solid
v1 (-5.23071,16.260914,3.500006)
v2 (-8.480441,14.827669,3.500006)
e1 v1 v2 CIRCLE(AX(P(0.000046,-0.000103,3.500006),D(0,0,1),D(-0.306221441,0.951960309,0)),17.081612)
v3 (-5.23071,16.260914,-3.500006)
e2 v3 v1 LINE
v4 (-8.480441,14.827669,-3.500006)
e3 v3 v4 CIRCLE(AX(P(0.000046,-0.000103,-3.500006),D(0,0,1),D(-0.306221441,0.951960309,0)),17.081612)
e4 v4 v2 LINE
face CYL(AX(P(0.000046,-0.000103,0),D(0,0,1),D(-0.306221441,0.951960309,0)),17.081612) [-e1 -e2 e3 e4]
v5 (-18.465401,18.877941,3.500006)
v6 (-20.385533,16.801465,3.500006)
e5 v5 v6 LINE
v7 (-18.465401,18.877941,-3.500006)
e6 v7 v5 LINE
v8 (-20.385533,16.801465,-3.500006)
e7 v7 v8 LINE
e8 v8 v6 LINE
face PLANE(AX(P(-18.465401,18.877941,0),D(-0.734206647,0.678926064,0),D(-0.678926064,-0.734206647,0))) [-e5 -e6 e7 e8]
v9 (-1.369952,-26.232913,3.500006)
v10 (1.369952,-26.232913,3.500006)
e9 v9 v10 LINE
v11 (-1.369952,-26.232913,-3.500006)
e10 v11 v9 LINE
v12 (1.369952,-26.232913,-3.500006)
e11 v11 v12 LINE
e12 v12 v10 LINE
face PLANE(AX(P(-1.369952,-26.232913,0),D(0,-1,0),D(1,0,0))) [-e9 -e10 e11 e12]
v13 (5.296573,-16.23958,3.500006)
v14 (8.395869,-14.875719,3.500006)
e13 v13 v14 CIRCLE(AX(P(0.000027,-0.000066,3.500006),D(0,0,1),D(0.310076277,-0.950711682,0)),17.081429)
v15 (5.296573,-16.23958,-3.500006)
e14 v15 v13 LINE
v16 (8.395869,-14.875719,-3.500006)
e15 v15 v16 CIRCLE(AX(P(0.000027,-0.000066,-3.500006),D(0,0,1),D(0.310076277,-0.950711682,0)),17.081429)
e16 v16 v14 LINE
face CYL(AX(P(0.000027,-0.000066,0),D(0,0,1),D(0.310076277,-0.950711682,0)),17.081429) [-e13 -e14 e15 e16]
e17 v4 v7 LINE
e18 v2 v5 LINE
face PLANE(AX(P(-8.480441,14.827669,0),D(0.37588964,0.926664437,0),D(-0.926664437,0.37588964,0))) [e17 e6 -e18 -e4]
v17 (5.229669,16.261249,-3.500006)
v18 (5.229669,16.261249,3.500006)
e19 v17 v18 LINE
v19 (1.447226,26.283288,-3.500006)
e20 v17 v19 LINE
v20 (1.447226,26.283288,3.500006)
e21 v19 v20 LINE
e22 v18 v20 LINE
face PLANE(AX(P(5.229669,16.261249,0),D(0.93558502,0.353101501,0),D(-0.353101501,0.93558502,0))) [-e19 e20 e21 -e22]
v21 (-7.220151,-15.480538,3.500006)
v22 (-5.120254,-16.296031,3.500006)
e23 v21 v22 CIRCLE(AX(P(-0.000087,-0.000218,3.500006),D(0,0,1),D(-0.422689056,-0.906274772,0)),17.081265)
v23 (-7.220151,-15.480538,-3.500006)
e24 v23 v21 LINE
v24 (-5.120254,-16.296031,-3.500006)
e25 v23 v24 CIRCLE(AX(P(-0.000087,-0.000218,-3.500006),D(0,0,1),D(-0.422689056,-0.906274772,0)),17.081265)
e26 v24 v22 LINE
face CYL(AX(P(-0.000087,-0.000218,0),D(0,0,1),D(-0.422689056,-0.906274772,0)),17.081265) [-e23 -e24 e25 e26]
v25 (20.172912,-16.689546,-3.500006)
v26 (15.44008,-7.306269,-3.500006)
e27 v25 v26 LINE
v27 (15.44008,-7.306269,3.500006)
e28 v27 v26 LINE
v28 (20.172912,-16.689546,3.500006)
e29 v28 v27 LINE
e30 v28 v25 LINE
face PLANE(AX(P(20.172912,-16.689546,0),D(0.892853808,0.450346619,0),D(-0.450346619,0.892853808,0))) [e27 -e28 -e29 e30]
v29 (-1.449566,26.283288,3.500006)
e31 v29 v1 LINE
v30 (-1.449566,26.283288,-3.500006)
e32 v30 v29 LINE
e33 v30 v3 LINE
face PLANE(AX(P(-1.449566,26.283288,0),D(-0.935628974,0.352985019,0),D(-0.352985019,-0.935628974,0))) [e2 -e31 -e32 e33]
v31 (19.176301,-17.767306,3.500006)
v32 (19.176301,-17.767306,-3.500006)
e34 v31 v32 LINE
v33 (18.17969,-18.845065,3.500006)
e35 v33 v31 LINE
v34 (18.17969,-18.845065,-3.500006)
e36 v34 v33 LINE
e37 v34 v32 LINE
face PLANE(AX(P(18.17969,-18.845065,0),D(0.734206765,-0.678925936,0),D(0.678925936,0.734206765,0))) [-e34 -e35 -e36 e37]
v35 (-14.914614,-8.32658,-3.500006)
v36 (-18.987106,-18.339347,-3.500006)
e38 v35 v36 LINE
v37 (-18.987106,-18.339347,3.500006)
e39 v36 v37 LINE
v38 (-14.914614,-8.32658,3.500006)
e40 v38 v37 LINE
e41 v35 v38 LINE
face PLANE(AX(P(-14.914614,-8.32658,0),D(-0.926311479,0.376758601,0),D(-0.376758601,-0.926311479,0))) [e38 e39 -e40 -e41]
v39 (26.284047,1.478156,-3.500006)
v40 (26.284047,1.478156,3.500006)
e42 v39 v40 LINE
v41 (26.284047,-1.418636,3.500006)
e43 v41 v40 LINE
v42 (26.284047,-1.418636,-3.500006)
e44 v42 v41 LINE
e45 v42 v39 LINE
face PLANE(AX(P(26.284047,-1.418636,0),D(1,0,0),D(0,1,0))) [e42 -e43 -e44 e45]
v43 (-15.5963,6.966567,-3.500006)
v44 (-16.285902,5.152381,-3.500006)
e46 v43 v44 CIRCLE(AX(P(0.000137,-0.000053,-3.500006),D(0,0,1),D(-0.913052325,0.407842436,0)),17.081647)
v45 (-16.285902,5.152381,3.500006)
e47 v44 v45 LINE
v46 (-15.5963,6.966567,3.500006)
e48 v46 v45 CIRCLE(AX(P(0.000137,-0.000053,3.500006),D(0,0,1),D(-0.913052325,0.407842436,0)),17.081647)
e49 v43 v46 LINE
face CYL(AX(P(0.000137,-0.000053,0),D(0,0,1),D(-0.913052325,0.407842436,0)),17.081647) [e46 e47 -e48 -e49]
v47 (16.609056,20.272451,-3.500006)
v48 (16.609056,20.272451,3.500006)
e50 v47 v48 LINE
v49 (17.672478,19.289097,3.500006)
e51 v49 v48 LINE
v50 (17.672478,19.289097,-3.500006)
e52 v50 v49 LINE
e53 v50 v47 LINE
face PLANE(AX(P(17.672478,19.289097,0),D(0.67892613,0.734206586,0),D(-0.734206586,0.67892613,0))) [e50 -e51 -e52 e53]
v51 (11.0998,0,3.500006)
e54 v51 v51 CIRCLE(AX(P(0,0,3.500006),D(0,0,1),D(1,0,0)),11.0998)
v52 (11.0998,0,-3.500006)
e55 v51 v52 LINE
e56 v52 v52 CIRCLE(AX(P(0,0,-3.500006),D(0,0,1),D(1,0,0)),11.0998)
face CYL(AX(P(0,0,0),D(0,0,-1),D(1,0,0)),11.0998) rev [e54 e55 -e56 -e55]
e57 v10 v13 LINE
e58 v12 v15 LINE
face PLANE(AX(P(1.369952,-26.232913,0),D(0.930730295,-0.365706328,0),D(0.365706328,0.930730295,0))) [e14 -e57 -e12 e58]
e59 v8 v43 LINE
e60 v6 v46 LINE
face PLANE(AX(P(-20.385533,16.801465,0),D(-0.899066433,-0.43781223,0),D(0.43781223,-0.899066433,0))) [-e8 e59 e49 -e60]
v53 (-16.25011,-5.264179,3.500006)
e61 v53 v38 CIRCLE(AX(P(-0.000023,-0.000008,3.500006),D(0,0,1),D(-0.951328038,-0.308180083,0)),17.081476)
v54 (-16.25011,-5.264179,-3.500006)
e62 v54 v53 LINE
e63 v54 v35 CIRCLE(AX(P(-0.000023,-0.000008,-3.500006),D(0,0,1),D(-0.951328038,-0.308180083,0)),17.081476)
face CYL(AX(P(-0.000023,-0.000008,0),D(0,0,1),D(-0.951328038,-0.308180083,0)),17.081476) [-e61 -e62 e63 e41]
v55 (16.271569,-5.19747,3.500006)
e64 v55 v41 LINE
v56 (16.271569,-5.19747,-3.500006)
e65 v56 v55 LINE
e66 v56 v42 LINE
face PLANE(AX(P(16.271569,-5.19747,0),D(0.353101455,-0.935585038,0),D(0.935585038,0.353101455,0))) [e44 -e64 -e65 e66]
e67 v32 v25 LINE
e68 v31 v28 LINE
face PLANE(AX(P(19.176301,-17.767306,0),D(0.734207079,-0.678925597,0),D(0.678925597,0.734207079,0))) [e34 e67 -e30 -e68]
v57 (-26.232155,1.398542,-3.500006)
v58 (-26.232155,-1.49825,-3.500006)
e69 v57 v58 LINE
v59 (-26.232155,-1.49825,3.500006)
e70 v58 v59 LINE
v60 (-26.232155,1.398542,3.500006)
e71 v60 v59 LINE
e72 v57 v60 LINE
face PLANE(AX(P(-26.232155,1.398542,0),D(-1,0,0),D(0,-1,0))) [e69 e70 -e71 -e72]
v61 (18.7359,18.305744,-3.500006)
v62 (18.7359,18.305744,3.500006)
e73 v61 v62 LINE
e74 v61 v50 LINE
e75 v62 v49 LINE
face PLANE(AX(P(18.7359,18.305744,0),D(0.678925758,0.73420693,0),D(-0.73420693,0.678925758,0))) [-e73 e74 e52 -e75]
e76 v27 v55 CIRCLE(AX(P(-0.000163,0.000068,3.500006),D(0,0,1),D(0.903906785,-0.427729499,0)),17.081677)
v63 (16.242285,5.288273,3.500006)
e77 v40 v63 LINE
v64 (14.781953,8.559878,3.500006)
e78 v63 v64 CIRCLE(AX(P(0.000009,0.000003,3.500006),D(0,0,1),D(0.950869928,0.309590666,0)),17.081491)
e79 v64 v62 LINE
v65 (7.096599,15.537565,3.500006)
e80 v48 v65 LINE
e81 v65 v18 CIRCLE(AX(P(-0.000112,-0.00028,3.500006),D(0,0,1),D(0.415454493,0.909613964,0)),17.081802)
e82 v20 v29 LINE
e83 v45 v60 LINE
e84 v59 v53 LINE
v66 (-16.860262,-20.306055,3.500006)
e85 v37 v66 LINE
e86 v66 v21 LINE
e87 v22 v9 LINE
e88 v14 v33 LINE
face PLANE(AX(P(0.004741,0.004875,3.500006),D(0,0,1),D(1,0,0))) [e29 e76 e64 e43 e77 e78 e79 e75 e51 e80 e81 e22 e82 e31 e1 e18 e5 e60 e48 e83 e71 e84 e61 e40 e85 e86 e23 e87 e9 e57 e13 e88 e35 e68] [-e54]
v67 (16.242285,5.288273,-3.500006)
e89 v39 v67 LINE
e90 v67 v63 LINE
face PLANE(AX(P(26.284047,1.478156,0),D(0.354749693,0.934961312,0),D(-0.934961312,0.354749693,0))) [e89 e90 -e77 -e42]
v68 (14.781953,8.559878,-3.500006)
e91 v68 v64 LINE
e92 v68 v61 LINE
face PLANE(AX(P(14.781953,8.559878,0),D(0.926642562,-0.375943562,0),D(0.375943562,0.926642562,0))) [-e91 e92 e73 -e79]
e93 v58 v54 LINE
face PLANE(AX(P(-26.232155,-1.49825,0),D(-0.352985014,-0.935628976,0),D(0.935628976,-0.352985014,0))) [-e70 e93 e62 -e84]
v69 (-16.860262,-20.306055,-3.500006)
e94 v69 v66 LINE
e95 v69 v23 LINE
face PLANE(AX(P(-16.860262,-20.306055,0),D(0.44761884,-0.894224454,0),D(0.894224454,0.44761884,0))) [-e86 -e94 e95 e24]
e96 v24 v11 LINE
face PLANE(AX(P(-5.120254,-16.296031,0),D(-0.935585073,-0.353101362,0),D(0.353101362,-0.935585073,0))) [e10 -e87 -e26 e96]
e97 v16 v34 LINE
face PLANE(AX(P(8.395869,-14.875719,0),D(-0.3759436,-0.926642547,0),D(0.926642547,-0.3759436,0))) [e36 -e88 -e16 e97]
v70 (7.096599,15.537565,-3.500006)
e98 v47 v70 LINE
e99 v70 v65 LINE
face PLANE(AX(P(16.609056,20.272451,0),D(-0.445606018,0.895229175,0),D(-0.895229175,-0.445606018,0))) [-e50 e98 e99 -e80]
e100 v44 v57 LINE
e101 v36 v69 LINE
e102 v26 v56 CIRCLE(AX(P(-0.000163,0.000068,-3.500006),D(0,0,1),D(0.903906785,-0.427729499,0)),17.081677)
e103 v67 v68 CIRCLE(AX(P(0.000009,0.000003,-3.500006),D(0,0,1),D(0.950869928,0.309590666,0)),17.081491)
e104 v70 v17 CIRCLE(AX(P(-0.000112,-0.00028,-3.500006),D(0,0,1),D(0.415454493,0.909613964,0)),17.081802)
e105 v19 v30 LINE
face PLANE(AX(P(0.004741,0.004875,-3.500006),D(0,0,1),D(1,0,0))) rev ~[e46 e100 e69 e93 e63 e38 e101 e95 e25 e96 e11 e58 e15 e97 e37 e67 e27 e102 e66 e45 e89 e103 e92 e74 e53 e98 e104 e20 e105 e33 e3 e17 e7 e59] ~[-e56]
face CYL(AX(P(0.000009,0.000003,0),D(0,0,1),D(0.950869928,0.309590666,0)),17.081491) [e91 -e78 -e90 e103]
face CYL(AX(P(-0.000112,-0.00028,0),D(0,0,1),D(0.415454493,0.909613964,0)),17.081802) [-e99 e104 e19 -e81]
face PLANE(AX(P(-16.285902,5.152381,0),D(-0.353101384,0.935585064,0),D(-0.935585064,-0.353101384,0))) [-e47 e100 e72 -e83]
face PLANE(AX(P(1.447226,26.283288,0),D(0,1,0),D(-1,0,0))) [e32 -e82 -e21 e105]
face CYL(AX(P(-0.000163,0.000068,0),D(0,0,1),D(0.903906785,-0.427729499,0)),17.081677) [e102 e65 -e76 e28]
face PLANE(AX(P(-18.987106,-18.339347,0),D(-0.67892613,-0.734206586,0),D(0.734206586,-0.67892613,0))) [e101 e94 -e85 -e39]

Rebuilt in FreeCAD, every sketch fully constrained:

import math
import FreeCAD as App
import Part
import Sketcher
from FreeCAD import Vector
Q = App.Units.Quantity

doc = App.newDocument("Part")
params = doc.addObject("Spreadsheet::Sheet", "Params")
for row, (alias, value) in enumerate([
    ("sketch1_diameter", "0.874 in"),
    ("pad1_length", "7.000012 mm"),
], start=1):
    params.set(f"A{row}", alias)
    params.set(f"B{row}", "=" + value)
    params.setAlias(f"B{row}", alias)

body = doc.addObject("PartDesign::Body", "Body")

sketch1 = doc.addObject("Sketcher::SketchObject", "Sketch")
body.addObject(sketch1)
sketch1.AttachmentSupport = (doc.XY_Plane, [""])
sketch1.MapMode = "FlatFace"
sketch1.addGeometry([
    Part.ArcOfCircle(Part.Circle(Vector(0, 0, 0), Vector(0, 0, 1), 17.1), math.radians(-25.32), math.radians(-17.71)),
    Part.LineSegment(Vector(16.3, -5.2, 0), Vector(26.3, -1.4, 0)),
    Part.LineSegment(Vector(26.3, -1.4, 0), Vector(26.3, 1.5, 0)),
    Part.LineSegment(Vector(26.3, 1.5, 0), Vector(16.2, 5.3, 0)),
    Part.ArcOfCircle(Part.Circle(Vector(0, 0, 0), Vector(0, 0, 1), 17.1), math.radians(18.03), math.radians(30.07)),
    Part.LineSegment(Vector(14.8, 8.6, 0), Vector(18.7, 18.3, 0)),
    Part.LineSegment(Vector(18.7, 18.3, 0), Vector(17.7, 19.3, 0)),
    Part.LineSegment(Vector(17.7, 19.3, 0), Vector(16.6, 20.3, 0)),
    Part.LineSegment(Vector(16.6, 20.3, 0), Vector(7.1, 15.5, 0)),
    Part.ArcOfCircle(Part.Circle(Vector(0, 0, 0), Vector(0, 0, 1), 17.1), math.radians(65.45), math.radians(72.17)),
    Part.LineSegment(Vector(5.2, 16.3, 0), Vector(1.4, 26.3, 0)),
    Part.LineSegment(Vector(1.4, 26.3, 0), Vector(-1.4, 26.3, 0)),
    Part.LineSegment(Vector(-1.4, 26.3, 0), Vector(-5.2, 16.3, 0)),
    Part.ArcOfCircle(Part.Circle(Vector(0, 0, 0), Vector(0, 0, 1), 17.1), math.radians(107.83), math.radians(119.77)),
    Part.LineSegment(Vector(-8.5, 14.8, 0), Vector(-18.5, 18.9, 0)),
    Part.LineSegment(Vector(-18.5, 18.9, 0), Vector(-20.4, 16.8, 0)),
    Part.LineSegment(Vector(-20.4, 16.8, 0), Vector(-15.6, 7, 0)),
    Part.ArcOfCircle(Part.Circle(Vector(0, 0, 0), Vector(0, 0, 1), 17.1), math.radians(155.93), math.radians(162.44)),
    Part.LineSegment(Vector(-16.3, 5.2, 0), Vector(-26.2, 1.4, 0)),
    Part.LineSegment(Vector(-26.2, 1.4, 0), Vector(-26.2, -1.5, 0)),
    Part.LineSegment(Vector(-26.2, -1.5, 0), Vector(-16.3, -5.3, 0)),
    Part.ArcOfCircle(Part.Circle(Vector(0, 0, 0), Vector(0, 0, 1), 17.1), math.radians(-162.05), math.radians(-150.83)),
    Part.LineSegment(Vector(-14.9, -8.3, 0), Vector(-19, -18.3, 0)),
    Part.LineSegment(Vector(-19, -18.3, 0), Vector(-16.9, -20.3, 0)),
    Part.LineSegment(Vector(-16.9, -20.3, 0), Vector(-7.2, -15.5, 0)),
    Part.ArcOfCircle(Part.Circle(Vector(0, 0, 0), Vector(0, 0, 1), 17.1), math.radians(-115), math.radians(-107.44)),
    Part.LineSegment(Vector(-5.1, -16.3, 0), Vector(-1.4, -26.2, 0)),
    Part.LineSegment(Vector(-1.4, -26.2, 0), Vector(1.4, -26.2, 0)),
    Part.LineSegment(Vector(1.4, -26.2, 0), Vector(5.3, -16.2, 0)),
    Part.ArcOfCircle(Part.Circle(Vector(0, 0, 0), Vector(0, 0, 1), 17.1), math.radians(-71.94), math.radians(-60.56)),
    Part.LineSegment(Vector(8.4, -14.9, 0), Vector(18.2, -18.8, 0)),
    Part.LineSegment(Vector(18.2, -18.8, 0), Vector(19.2, -17.8, 0)),
    Part.LineSegment(Vector(19.2, -17.8, 0), Vector(20.2, -16.7, 0)),
    Part.LineSegment(Vector(20.2, -16.7, 0), Vector(15.4, -7.3, 0)),
    Part.Circle(Vector(0, 0, 0), Vector(0, 0, 1), 11.1),
], False)
sketch1.addConstraint([
    Sketcher.Constraint("Coincident", 0, 2, 1, 1),
    Sketcher.Constraint("Coincident", 1, 2, 2, 1),
    Sketcher.Constraint("Coincident", 2, 2, 3, 1),
    Sketcher.Constraint("Coincident", 3, 2, 4, 1),
    Sketcher.Constraint("Coincident", 4, 2, 5, 1),
    Sketcher.Constraint("Coincident", 5, 2, 6, 1),
    Sketcher.Constraint("Coincident", 6, 2, 7, 1),
    Sketcher.Constraint("Coincident", 7, 2, 8, 1),
    Sketcher.Constraint("Coincident", 8, 2, 9, 1),
    Sketcher.Constraint("Coincident", 9, 2, 10, 1),
    Sketcher.Constraint("Coincident", 10, 2, 11, 1),
    Sketcher.Constraint("Coincident", 11, 2, 12, 1),
    Sketcher.Constraint("Coincident", 12, 2, 13, 1),
    Sketcher.Constraint("Coincident", 13, 2, 14, 1),
    Sketcher.Constraint("Coincident", 14, 2, 15, 1),
    Sketcher.Constraint("Coincident", 15, 2, 16, 1),
    Sketcher.Constraint("Coincident", 16, 2, 17, 1),
    Sketcher.Constraint("Coincident", 17, 2, 18, 1),
    Sketcher.Constraint("Coincident", 18, 2, 19, 1),
    Sketcher.Constraint("Coincident", 19, 2, 20, 1),
    Sketcher.Constraint("Coincident", 20, 2, 21, 1),
    Sketcher.Constraint("Coincident", 21, 2, 22, 1),
    Sketcher.Constraint("Coincident", 22, 2, 23, 1),
    Sketcher.Constraint("Coincident", 23, 2, 24, 1),
    Sketcher.Constraint("Coincident", 24, 2, 25, 1),
    Sketcher.Constraint("Coincident", 25, 2, 26, 1),
    Sketcher.Constraint("Coincident", 26, 2, 27, 1),
    Sketcher.Constraint("Coincident", 27, 2, 28, 1),
    Sketcher.Constraint("Coincident", 28, 2, 29, 1),
    Sketcher.Constraint("Coincident", 29, 2, 30, 1),
    Sketcher.Constraint("Coincident", 30, 2, 31, 1),
    Sketcher.Constraint("Coincident", 31, 2, 32, 1),
    Sketcher.Constraint("Coincident", 32, 2, 33, 1),
    Sketcher.Constraint("Coincident", 33, 2, 0, 1),
    Sketcher.Constraint("Vertical", 2),
    Sketcher.Constraint("Horizontal", 11),
    Sketcher.Constraint("Vertical", 19),
    Sketcher.Constraint("Horizontal", 27),
    Sketcher.Constraint("Coincident", 4, 3, -1, 1),
    Sketcher.Constraint("Coincident", 34, 3, -1, 1),
    Sketcher.Constraint("Parallel", 6, 7),
    Sketcher.Constraint("Perpendicular", 1, 10),
    Sketcher.Constraint("Perpendicular", 7, 15),
    Sketcher.Constraint("Perpendicular", 10, 18),
    Sketcher.Constraint("Perpendicular", 12, 20),
    Sketcher.Constraint("Perpendicular", 15, 23),
    Sketcher.Constraint("Perpendicular", 18, 26),
    Sketcher.Constraint("Perpendicular", 5, 30),
    Sketcher.Constraint("Perpendicular", 23, 31),
    Sketcher.Constraint("Parallel", 31, 32),
    Sketcher.Constraint("Equal", 11, 2),
    Sketcher.Constraint("Equal", 2, 19),
    Sketcher.Constraint("Equal", 6, 7),
    Sketcher.Constraint("Equal", 31, 32),
    Sketcher.Constraint("Diameter", 34, Q("0.874 in")),
    Sketcher.Constraint("Angle", 12, Q("-110.670001 deg")),
    Sketcher.Constraint("Radius", 9, 17.081802),
    Sketcher.Constraint("Radius", 4, 17.081491),
    Sketcher.Constraint("Radius", 29, 17.081429),
    Sketcher.Constraint("DistanceX", -1, 1, 7, 2, Q("0.6538998 in")),
    Sketcher.Constraint("Radius", 0, 17.081677),
    Sketcher.Constraint("Radius", 13, 17.081612),
    Sketcher.Constraint("Radius", 17, 17.081647),
    Sketcher.Constraint("Radius", 21, 17.081476),
    Sketcher.Constraint("Radius", 25, 17.081265),
    Sketcher.Constraint("DistanceX", 4, 2, 6, 2, Q("0.1138002 in")),
    Sketcher.Constraint("DistanceY", 15, 2, 11, 2, Q("0.3733001 in")),
    Sketcher.Constraint("DistanceY", 23, 2, 20, 2, Q("0.5921998 in")),
    Sketcher.Constraint("DistanceX", 11, 2, 11, 1, 2.896792),
    Sketcher.Constraint("DistanceX", -1, 1, 5, 2, 18.7359),
    Sketcher.Constraint("DistanceX", -1, 1, 8, 2, 7.096599),
    Sketcher.Constraint("DistanceX", 14, 2, -1, 1, 18.465401),
    Sketcher.Constraint("DistanceX", 16, 2, -1, 1, 15.5963),
    Sketcher.Constraint("DistanceX", -1, 1, 31, 2, 19.176301),
    Sketcher.Constraint("DistanceX", 0, 3, 17, 3, 0.0003),
    Sketcher.Constraint("DistanceX", 13, 3, 1, 2, 26.284001),
    Sketcher.Constraint("DistanceY", 9, 2, 7, 2, 4.011202),
    Sketcher.Constraint("DistanceY", 0, 3, 16, 2, 6.966499),
    Sketcher.Constraint("DistanceX", 14, 2, 17, 2, 2.179499),
    Sketcher.Constraint("DistanceY", 18, 2, 14, 2, 17.479399),
    Sketcher.Constraint("DistanceY", 20, 2, 9, 3, 5.263899),
    Sketcher.Constraint("DistanceY", 21, 2, 20, 2, 3.062401),
    Sketcher.Constraint("DistanceX", 24, 2, 26, 2, 5.850199),
    Sketcher.Constraint("DistanceX", 29, 2, 0, 2, 7.8757),
    Sketcher.Constraint("DistanceY", 33, 2, 0, 2, 2.108799),
    Sketcher.Constraint("Distance", 12, 10.711911),
    Sketcher.Constraint("Distance", 15, 2.82819),
    Sketcher.Constraint("Distance", 16, 10.939011),
    Sketcher.Constraint("Distance", 18, 10.631051),
    Sketcher.Constraint("Distance", 33, 10.509309),
    Sketcher.Constraint("DistanceX", 27, 1, 27, 2, 2.739904),
    Sketcher.Constraint("DistanceY", 9, 3, -1, 1, 0.00028),
    Sketcher.Constraint("DistanceY", 25, 3, -1, 1, 0.000218),
    Sketcher.Constraint("DistanceX", -1, 1, 0, 2, 16.271569),
    Sketcher.Constraint("DistanceY", 0, 2, -1, 1, 5.19747),
    Sketcher.Constraint("DistanceY", -1, 1, 7, 2, 20.272451),
    Sketcher.Constraint("DistanceX", -1, 1, 9, 2, 5.229669),
    Sketcher.Constraint("DistanceX", 12, 2, -1, 1, 5.23071),
    Sketcher.Constraint("DistanceX", 13, 2, -1, 1, 8.480441),
    Sketcher.Constraint("DistanceY", -1, 1, 13, 2, 14.827669),
    Sketcher.Constraint("DistanceY", -1, 1, 14, 2, 18.877941),
    Sketcher.Constraint("DistanceX", 23, 2, -1, 1, 16.860262),
    Sketcher.Constraint("DistanceX", 24, 2, -1, 1, 7.220151),
    Sketcher.Constraint("DistanceY", 25, 2, -1, 1, 16.296031),
    Sketcher.Constraint("DistanceY", 28, 2, -1, 1, 16.23958),
    Sketcher.Constraint("DistanceY", 29, 2, -1, 1, 14.875719),
    Sketcher.Constraint("DistanceX", 0, 3, 21, 3, 0.000141),
    Sketcher.Constraint("DistanceX", 29, 3, 17, 3, 0.00011),
    Sketcher.Constraint("DistanceY", 1, 2, 3, 2, 6.706909),
    Sketcher.Constraint("DistanceX", 19, 2, 22, 2, 7.245049),
    Sketcher.Constraint("DistanceY", 24, 2, 21, 2, 7.153958),
])
sketch1.setExpression("Constraints[54]", "Params.sketch1_diameter")
pad1 = doc.addObject("PartDesign::Pad", "Pad")
body.addObject(pad1)
pad1.Profile = sketch1
pad1.setExpression("Length", "Params.pad1_length")
pad1.Midplane = True

doc.recompute()
